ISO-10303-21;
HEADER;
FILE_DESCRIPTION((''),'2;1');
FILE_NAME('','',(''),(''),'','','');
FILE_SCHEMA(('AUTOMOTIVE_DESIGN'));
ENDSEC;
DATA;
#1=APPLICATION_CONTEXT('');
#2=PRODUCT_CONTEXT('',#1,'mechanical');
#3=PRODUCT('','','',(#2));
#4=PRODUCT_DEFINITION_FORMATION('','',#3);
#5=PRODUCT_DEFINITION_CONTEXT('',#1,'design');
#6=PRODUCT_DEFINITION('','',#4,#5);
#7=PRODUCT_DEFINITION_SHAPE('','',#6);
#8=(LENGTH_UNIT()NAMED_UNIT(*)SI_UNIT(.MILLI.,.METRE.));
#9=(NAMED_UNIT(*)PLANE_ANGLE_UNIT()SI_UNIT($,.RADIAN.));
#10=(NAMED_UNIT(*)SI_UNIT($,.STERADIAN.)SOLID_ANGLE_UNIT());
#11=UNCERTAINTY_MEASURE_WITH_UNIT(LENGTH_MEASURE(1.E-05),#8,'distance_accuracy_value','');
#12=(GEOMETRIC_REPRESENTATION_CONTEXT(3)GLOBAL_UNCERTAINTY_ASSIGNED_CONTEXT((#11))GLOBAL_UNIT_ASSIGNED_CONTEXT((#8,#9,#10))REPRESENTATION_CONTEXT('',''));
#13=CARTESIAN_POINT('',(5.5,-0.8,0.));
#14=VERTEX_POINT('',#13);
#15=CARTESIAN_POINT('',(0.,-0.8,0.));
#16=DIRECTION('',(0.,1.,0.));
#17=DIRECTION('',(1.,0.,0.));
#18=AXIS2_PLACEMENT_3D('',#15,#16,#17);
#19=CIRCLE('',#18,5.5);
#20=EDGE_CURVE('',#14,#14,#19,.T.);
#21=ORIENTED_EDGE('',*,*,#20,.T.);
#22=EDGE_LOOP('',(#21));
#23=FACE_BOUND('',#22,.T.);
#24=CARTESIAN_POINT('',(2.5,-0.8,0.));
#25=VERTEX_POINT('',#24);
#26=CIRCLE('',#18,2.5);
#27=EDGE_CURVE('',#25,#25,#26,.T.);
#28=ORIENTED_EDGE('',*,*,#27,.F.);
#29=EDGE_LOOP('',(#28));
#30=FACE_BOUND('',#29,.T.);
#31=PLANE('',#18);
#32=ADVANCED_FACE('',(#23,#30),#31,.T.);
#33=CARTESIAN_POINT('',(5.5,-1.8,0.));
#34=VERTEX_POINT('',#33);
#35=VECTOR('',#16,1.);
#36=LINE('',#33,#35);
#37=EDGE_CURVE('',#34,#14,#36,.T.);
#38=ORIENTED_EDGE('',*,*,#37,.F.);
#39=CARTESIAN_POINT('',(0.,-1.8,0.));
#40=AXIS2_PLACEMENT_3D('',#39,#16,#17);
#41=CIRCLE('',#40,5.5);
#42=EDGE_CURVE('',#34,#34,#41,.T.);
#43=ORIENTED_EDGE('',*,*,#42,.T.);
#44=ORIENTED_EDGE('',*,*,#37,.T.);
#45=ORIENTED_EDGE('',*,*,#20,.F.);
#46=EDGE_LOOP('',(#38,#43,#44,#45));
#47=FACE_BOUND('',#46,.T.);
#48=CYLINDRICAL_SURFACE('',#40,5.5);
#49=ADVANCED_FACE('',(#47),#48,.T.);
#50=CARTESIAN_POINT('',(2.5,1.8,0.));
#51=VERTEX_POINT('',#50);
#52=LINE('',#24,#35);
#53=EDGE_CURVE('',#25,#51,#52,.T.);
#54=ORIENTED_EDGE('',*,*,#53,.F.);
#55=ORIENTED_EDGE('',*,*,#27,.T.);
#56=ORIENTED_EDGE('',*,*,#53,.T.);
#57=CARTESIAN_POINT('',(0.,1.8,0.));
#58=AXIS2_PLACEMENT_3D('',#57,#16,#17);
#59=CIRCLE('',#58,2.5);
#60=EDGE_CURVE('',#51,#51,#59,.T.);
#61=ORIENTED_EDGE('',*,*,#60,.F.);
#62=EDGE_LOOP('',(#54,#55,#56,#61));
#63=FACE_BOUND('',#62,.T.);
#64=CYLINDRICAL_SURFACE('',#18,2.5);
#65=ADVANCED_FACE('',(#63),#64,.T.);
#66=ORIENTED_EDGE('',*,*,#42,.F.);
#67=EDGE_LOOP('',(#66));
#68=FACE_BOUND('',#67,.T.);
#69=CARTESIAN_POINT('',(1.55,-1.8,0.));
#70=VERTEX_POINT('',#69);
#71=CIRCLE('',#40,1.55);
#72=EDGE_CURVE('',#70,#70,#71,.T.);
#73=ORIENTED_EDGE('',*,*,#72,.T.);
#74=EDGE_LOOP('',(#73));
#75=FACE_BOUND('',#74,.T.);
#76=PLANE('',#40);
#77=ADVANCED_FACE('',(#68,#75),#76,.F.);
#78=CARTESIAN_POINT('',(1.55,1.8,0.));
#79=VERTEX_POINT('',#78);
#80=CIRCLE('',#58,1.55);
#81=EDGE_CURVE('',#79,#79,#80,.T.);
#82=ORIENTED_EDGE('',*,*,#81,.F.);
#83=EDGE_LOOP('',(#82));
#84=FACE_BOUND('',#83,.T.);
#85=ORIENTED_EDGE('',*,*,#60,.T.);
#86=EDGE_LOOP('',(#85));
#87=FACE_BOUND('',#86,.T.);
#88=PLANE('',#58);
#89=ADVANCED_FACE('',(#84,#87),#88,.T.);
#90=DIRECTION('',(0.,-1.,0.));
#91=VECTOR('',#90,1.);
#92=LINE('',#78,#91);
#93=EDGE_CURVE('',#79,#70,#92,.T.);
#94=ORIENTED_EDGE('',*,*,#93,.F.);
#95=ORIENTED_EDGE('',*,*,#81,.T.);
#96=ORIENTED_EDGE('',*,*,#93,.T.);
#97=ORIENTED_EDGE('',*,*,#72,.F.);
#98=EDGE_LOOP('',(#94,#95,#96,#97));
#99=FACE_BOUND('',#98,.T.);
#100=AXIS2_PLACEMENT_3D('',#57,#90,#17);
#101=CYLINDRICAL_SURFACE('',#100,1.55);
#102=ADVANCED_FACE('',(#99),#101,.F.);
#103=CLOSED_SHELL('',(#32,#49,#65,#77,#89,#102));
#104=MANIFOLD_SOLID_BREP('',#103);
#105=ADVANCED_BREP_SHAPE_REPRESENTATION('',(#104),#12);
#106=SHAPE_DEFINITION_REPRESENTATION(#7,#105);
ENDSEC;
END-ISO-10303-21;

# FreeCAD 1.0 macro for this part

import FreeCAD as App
import Part
import Sketcher

doc = App.newDocument("Part")
body = doc.addObject("PartDesign::Body", "Body")

sketch1 = body.newObject("Sketcher::SketchObject", "Sketch")
sketch1.AttachmentSupport = (doc.getObject("XY_Plane"), [""])
sketch1.MapMode = "FlatFace"
sketch1.addGeometry(Part.LineSegment(App.Vector(2.5, 1.8, 0), App.Vector(1.6, 1.8, 0)), False)
sketch1.addGeometry(Part.LineSegment(App.Vector(1.6, 1.8, 0), App.Vector(1.6, -1.8, 0)), False)
sketch1.addGeometry(Part.LineSegment(App.Vector(1.6, -1.8, 0), App.Vector(5.5, -1.8, 0)), False)
sketch1.addGeometry(Part.LineSegment(App.Vector(5.5, -1.8, 0), App.Vector(5.5, -0.8, 0)), False)
sketch1.addGeometry(Part.LineSegment(App.Vector(5.5, -0.8, 0), App.Vector(2.5, -0.8, 0)), False)
sketch1.addGeometry(Part.LineSegment(App.Vector(2.5, -0.8, 0), App.Vector(2.5, 1.8, 0)), False)
sketch1.addConstraint(Sketcher.Constraint("Coincident", 0, 2, 1, 1))
sketch1.addConstraint(Sketcher.Constraint("Coincident", 1, 2, 2, 1))
sketch1.addConstraint(Sketcher.Constraint("Coincident", 2, 2, 3, 1))
sketch1.addConstraint(Sketcher.Constraint("Coincident", 3, 2, 4, 1))
sketch1.addConstraint(Sketcher.Constraint("Coincident", 4, 2, 5, 1))
sketch1.addConstraint(Sketcher.Constraint("Coincident", 5, 2, 0, 1))
sketch1.addConstraint(Sketcher.Constraint("Horizontal", 0))
sketch1.addConstraint(Sketcher.Constraint("Vertical", 1))
sketch1.addConstraint(Sketcher.Constraint("Horizontal", 2))
sketch1.addConstraint(Sketcher.Constraint("Vertical", 3))
sketch1.addConstraint(Sketcher.Constraint("Horizontal", 4))
sketch1.addConstraint(Sketcher.Constraint("Vertical", 5))
sketch1.addConstraint(Sketcher.Constraint("DistanceY", 3, 1, 3, 2, 1.0))
sketch1.addConstraint(Sketcher.Constraint("DistanceY", 5, 1, 5, 2, 2.6))
sketch1.addConstraint(Sketcher.Constraint("DistanceX", -1, 1, 2, 2, 5.5))
sketch1.addConstraint(Sketcher.Constraint("DistanceX", -1, 1, 4, 2, 2.5))
sketch1.addConstraint(Sketcher.Constraint("DistanceX", -1, 1, 0, 2, 1.55))
sketch1.addConstraint(Sketcher.Constraint("DistanceY", -1, 1, 0, 2, 1.8))
revolution = body.newObject("PartDesign::Revolution", "Revolution")
revolution.Profile = sketch1
revolution.ReferenceAxis = (sketch1, ["V_Axis"])
revolution.Angle = 360

doc.recompute()
